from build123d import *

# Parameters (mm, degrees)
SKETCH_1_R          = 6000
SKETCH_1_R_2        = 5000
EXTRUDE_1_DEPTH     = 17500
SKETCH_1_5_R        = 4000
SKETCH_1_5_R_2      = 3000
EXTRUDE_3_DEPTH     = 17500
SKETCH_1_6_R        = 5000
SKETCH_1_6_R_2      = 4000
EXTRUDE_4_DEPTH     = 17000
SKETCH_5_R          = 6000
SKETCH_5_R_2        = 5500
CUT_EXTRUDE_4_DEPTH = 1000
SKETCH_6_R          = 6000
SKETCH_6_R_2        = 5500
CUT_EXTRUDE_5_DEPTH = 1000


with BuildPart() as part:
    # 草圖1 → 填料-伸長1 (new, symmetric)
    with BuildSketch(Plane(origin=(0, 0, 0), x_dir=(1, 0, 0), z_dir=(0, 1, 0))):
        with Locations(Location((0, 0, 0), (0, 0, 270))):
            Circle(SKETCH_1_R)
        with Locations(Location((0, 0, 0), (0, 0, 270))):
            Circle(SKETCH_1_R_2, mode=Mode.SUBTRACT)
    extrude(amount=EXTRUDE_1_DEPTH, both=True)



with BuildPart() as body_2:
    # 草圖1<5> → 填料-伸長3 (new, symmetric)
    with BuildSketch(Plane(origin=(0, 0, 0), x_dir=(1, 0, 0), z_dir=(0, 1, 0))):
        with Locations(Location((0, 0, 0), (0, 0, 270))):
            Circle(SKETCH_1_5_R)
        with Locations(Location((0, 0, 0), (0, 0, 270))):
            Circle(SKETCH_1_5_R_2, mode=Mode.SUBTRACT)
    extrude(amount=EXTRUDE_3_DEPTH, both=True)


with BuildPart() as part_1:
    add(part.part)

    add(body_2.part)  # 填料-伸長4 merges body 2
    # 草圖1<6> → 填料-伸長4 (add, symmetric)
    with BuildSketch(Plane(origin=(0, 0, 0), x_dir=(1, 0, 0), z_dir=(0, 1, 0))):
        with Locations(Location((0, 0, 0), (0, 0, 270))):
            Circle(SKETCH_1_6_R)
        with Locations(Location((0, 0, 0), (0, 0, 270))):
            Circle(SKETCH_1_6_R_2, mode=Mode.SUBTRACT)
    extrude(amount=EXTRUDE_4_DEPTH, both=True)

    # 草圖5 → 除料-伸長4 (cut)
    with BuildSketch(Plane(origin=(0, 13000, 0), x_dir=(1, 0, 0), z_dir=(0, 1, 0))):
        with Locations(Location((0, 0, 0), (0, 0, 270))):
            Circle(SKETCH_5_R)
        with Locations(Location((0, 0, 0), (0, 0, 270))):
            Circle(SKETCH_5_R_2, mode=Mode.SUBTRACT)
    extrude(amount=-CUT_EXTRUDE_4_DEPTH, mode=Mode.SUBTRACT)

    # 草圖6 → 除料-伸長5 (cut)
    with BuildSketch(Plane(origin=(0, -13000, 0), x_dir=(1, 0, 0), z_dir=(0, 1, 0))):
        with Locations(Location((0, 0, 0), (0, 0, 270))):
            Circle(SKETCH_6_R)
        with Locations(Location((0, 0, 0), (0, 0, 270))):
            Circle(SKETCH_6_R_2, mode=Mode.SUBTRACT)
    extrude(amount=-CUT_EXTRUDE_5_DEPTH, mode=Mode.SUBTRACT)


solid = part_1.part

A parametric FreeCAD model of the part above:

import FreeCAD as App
import Part
import Sketcher
Q = App.Units.Quantity

doc = App.newDocument("Part")
body = doc.addObject("PartDesign::Body", "Body")

# Sketch on XZ plane
sketch1 = body.newObject("Sketcher::SketchObject", "Sketch")
sketch1.AttachmentSupport = (doc.getObject("XZ_Plane"), [""])
sketch1.MapMode = "FlatFace"
sketch1.addGeometry(Part.Circle(App.Vector(0, 0, 0), App.Vector(0, 0, 1), 6000), False)
sketch1.addGeometry(Part.Circle(App.Vector(0, 0, 0), App.Vector(0, 0, 1), 5000), False)
sketch1.addConstraint(Sketcher.Constraint("Coincident", 0, 3, -1, 1))
sketch1.addConstraint(Sketcher.Constraint("Coincident", 1, 3, -1, 1))
sketch1.addConstraint(Sketcher.Constraint("Diameter", 0, Q("12000 mm")))
sketch1.addConstraint(Sketcher.Constraint("Diameter", 1, Q("10000 mm")))
pad1 = body.newObject("PartDesign::Pad", "Pad")
pad1.Profile = sketch1
pad1.Length = 35000
pad1.Midplane = True
body2 = doc.addObject("PartDesign::Body", "Body001")

# Sketch on XZ plane
sketch2 = body2.newObject("Sketcher::SketchObject", "Sketch001")
sketch2.AttachmentSupport = (doc.getObject("XZ_Plane001"), [""])
sketch2.MapMode = "FlatFace"
sketch2.addGeometry(Part.Circle(App.Vector(0, 0, 0), App.Vector(0, 0, 1), 4000), False)
sketch2.addGeometry(Part.Circle(App.Vector(0, 0, 0), App.Vector(0, 0, 1), 3000), False)
sketch2.addConstraint(Sketcher.Constraint("Coincident", 0, 3, -1, 1))
sketch2.addConstraint(Sketcher.Constraint("Coincident", 1, 3, -1, 1))
sketch2.addConstraint(Sketcher.Constraint("Diameter", 0, Q("8000 mm")))
sketch2.addConstraint(Sketcher.Constraint("Diameter", 1, Q("6000 mm")))
pad2 = body2.newObject("PartDesign::Pad", "Pad001")
pad2.Profile = sketch2
pad2.Length = 35000
pad2.Midplane = True
body.AllowCompound = True
doc.recompute()

boolean = body.newObject("PartDesign::Boolean", "Boolean")
boolean.Type = "Fuse"
boolean.addObjects([body2])

# Sketch on XZ plane
sketch3 = body.newObject("Sketcher::SketchObject", "Sketch002")
sketch3.AttachmentSupport = (doc.getObject("XZ_Plane"), [""])
sketch3.MapMode = "FlatFace"
sketch3.addGeometry(Part.Circle(App.Vector(0, 0, 0), App.Vector(0, 0, 1), 5000), False)
sketch3.addGeometry(Part.Circle(App.Vector(0, 0, 0), App.Vector(0, 0, 1), 4000), False)
sketch3.addConstraint(Sketcher.Constraint("Coincident", 0, 3, -1, 1))
sketch3.addConstraint(Sketcher.Constraint("Coincident", 1, 3, -1, 1))
sketch3.addConstraint(Sketcher.Constraint("Diameter", 0, Q("10000 mm")))
sketch3.addConstraint(Sketcher.Constraint("Diameter", 1, Q("8000 mm")))
pad3 = body.newObject("PartDesign::Pad", "Pad002")
pad3.Profile = sketch3
pad3.Length = 34000
pad3.Midplane = True

# Sketch on XZ plane
sketch4 = body.newObject("Sketcher::SketchObject", "Sketch003")
sketch4.AttachmentSupport = (doc.getObject("XZ_Plane"), [""])
sketch4.MapMode = "FlatFace"
sketch4.AttachmentOffset = App.Placement(App.Vector(0, 0, -13000), App.Rotation())
sketch4.addGeometry(Part.Circle(App.Vector(0, 0, 0), App.Vector(0, 0, 1), 6000), False)
sketch4.addGeometry(Part.Circle(App.Vector(0, 0, 0), App.Vector(0, 0, 1), 5500), False)
sketch4.addConstraint(Sketcher.Constraint("Coincident", 0, 3, -1, 1))
sketch4.addConstraint(Sketcher.Constraint("Coincident", 1, 3, -1, 1))
sketch4.addConstraint(Sketcher.Constraint("Diameter", 0, Q("12000 mm")))
sketch4.addConstraint(Sketcher.Constraint("Diameter", 1, Q("11000 mm")))
pocket1 = body.newObject("PartDesign::Pocket", "Pocket")
pocket1.Profile = sketch4
pocket1.Length = 1000
pocket1.Reversed = True

# Sketch on XZ plane
sketch5 = body.newObject("Sketcher::SketchObject", "Sketch004")
sketch5.AttachmentSupport = (doc.getObject("XZ_Plane"), [""])
sketch5.MapMode = "FlatFace"
sketch5.AttachmentOffset = App.Placement(App.Vector(0, 0, 13000), App.Rotation())
sketch5.addGeometry(Part.Circle(App.Vector(0, 0, 0), App.Vector(0, 0, 1), 6000), False)
sketch5.addGeometry(Part.Circle(App.Vector(0, 0, 0), App.Vector(0, 0, 1), 5500), False)
sketch5.addConstraint(Sketcher.Constraint("Coincident", 0, 3, -1, 1))
sketch5.addConstraint(Sketcher.Constraint("Coincident", 1, 3, -1, 1))
sketch5.addConstraint(Sketcher.Constraint("Diameter", 0, Q("12000 mm")))
sketch5.addConstraint(Sketcher.Constraint("Diameter", 1, Q("11000 mm")))
pocket2 = body.newObject("PartDesign::Pocket", "Pocket001")
pocket2.Profile = sketch5
pocket2.Length = 1000
pocket2.Reversed = True

doc.recompute()
